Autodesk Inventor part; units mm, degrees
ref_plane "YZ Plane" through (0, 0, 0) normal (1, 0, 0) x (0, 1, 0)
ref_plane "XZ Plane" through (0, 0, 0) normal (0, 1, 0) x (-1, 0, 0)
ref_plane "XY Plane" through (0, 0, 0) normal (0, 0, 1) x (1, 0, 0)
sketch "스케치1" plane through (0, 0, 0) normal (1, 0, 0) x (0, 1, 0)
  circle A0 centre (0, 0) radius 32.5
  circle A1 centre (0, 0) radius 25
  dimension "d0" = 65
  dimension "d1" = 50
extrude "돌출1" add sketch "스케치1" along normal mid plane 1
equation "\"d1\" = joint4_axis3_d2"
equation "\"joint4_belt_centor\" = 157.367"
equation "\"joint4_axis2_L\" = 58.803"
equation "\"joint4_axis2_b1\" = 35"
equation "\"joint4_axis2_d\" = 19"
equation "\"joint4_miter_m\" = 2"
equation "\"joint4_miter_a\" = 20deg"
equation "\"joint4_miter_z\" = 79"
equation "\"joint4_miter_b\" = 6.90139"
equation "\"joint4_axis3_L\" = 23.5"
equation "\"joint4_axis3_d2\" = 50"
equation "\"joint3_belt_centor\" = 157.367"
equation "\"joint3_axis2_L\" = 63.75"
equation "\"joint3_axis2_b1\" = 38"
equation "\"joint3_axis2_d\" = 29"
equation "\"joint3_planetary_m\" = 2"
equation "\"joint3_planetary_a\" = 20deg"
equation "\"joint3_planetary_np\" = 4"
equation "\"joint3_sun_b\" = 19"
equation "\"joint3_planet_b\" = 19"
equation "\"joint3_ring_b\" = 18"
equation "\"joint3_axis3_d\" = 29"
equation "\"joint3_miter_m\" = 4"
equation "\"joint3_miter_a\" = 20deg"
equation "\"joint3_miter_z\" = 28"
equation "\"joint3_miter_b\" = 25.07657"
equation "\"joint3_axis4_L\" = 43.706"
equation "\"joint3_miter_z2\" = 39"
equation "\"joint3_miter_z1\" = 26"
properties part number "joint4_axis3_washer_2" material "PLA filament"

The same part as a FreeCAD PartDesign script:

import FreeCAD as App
import Part
import Sketcher
Q = App.Units.Quantity

doc = App.newDocument("Part")
body = doc.addObject("PartDesign::Body", "Body")

# Sketch on YZ plane
sketch1 = body.newObject("Sketcher::SketchObject", "Sketch")
sketch1.AttachmentSupport = (doc.getObject("YZ_Plane"), [""])
sketch1.MapMode = "FlatFace"
sketch1.addGeometry(Part.Circle(App.Vector(0, 0, 0), App.Vector(0, 0, 1), 32), False)
sketch1.addGeometry(Part.Circle(App.Vector(0, 0, 0), App.Vector(0, 0, 1), 25), False)
sketch1.addConstraint(Sketcher.Constraint("Coincident", 0, 3, -1, 1))
sketch1.addConstraint(Sketcher.Constraint("Coincident", 1, 3, -1, 1))
sketch1.addConstraint(Sketcher.Constraint("Diameter", 0, Q("65 mm")))
sketch1.addConstraint(Sketcher.Constraint("Diameter", 1, Q("50 mm")))
pad1 = body.newObject("PartDesign::Pad", "Pad")
pad1.Profile = sketch1
pad1.Length = 1
pad1.Midplane = True

doc.recompute()
